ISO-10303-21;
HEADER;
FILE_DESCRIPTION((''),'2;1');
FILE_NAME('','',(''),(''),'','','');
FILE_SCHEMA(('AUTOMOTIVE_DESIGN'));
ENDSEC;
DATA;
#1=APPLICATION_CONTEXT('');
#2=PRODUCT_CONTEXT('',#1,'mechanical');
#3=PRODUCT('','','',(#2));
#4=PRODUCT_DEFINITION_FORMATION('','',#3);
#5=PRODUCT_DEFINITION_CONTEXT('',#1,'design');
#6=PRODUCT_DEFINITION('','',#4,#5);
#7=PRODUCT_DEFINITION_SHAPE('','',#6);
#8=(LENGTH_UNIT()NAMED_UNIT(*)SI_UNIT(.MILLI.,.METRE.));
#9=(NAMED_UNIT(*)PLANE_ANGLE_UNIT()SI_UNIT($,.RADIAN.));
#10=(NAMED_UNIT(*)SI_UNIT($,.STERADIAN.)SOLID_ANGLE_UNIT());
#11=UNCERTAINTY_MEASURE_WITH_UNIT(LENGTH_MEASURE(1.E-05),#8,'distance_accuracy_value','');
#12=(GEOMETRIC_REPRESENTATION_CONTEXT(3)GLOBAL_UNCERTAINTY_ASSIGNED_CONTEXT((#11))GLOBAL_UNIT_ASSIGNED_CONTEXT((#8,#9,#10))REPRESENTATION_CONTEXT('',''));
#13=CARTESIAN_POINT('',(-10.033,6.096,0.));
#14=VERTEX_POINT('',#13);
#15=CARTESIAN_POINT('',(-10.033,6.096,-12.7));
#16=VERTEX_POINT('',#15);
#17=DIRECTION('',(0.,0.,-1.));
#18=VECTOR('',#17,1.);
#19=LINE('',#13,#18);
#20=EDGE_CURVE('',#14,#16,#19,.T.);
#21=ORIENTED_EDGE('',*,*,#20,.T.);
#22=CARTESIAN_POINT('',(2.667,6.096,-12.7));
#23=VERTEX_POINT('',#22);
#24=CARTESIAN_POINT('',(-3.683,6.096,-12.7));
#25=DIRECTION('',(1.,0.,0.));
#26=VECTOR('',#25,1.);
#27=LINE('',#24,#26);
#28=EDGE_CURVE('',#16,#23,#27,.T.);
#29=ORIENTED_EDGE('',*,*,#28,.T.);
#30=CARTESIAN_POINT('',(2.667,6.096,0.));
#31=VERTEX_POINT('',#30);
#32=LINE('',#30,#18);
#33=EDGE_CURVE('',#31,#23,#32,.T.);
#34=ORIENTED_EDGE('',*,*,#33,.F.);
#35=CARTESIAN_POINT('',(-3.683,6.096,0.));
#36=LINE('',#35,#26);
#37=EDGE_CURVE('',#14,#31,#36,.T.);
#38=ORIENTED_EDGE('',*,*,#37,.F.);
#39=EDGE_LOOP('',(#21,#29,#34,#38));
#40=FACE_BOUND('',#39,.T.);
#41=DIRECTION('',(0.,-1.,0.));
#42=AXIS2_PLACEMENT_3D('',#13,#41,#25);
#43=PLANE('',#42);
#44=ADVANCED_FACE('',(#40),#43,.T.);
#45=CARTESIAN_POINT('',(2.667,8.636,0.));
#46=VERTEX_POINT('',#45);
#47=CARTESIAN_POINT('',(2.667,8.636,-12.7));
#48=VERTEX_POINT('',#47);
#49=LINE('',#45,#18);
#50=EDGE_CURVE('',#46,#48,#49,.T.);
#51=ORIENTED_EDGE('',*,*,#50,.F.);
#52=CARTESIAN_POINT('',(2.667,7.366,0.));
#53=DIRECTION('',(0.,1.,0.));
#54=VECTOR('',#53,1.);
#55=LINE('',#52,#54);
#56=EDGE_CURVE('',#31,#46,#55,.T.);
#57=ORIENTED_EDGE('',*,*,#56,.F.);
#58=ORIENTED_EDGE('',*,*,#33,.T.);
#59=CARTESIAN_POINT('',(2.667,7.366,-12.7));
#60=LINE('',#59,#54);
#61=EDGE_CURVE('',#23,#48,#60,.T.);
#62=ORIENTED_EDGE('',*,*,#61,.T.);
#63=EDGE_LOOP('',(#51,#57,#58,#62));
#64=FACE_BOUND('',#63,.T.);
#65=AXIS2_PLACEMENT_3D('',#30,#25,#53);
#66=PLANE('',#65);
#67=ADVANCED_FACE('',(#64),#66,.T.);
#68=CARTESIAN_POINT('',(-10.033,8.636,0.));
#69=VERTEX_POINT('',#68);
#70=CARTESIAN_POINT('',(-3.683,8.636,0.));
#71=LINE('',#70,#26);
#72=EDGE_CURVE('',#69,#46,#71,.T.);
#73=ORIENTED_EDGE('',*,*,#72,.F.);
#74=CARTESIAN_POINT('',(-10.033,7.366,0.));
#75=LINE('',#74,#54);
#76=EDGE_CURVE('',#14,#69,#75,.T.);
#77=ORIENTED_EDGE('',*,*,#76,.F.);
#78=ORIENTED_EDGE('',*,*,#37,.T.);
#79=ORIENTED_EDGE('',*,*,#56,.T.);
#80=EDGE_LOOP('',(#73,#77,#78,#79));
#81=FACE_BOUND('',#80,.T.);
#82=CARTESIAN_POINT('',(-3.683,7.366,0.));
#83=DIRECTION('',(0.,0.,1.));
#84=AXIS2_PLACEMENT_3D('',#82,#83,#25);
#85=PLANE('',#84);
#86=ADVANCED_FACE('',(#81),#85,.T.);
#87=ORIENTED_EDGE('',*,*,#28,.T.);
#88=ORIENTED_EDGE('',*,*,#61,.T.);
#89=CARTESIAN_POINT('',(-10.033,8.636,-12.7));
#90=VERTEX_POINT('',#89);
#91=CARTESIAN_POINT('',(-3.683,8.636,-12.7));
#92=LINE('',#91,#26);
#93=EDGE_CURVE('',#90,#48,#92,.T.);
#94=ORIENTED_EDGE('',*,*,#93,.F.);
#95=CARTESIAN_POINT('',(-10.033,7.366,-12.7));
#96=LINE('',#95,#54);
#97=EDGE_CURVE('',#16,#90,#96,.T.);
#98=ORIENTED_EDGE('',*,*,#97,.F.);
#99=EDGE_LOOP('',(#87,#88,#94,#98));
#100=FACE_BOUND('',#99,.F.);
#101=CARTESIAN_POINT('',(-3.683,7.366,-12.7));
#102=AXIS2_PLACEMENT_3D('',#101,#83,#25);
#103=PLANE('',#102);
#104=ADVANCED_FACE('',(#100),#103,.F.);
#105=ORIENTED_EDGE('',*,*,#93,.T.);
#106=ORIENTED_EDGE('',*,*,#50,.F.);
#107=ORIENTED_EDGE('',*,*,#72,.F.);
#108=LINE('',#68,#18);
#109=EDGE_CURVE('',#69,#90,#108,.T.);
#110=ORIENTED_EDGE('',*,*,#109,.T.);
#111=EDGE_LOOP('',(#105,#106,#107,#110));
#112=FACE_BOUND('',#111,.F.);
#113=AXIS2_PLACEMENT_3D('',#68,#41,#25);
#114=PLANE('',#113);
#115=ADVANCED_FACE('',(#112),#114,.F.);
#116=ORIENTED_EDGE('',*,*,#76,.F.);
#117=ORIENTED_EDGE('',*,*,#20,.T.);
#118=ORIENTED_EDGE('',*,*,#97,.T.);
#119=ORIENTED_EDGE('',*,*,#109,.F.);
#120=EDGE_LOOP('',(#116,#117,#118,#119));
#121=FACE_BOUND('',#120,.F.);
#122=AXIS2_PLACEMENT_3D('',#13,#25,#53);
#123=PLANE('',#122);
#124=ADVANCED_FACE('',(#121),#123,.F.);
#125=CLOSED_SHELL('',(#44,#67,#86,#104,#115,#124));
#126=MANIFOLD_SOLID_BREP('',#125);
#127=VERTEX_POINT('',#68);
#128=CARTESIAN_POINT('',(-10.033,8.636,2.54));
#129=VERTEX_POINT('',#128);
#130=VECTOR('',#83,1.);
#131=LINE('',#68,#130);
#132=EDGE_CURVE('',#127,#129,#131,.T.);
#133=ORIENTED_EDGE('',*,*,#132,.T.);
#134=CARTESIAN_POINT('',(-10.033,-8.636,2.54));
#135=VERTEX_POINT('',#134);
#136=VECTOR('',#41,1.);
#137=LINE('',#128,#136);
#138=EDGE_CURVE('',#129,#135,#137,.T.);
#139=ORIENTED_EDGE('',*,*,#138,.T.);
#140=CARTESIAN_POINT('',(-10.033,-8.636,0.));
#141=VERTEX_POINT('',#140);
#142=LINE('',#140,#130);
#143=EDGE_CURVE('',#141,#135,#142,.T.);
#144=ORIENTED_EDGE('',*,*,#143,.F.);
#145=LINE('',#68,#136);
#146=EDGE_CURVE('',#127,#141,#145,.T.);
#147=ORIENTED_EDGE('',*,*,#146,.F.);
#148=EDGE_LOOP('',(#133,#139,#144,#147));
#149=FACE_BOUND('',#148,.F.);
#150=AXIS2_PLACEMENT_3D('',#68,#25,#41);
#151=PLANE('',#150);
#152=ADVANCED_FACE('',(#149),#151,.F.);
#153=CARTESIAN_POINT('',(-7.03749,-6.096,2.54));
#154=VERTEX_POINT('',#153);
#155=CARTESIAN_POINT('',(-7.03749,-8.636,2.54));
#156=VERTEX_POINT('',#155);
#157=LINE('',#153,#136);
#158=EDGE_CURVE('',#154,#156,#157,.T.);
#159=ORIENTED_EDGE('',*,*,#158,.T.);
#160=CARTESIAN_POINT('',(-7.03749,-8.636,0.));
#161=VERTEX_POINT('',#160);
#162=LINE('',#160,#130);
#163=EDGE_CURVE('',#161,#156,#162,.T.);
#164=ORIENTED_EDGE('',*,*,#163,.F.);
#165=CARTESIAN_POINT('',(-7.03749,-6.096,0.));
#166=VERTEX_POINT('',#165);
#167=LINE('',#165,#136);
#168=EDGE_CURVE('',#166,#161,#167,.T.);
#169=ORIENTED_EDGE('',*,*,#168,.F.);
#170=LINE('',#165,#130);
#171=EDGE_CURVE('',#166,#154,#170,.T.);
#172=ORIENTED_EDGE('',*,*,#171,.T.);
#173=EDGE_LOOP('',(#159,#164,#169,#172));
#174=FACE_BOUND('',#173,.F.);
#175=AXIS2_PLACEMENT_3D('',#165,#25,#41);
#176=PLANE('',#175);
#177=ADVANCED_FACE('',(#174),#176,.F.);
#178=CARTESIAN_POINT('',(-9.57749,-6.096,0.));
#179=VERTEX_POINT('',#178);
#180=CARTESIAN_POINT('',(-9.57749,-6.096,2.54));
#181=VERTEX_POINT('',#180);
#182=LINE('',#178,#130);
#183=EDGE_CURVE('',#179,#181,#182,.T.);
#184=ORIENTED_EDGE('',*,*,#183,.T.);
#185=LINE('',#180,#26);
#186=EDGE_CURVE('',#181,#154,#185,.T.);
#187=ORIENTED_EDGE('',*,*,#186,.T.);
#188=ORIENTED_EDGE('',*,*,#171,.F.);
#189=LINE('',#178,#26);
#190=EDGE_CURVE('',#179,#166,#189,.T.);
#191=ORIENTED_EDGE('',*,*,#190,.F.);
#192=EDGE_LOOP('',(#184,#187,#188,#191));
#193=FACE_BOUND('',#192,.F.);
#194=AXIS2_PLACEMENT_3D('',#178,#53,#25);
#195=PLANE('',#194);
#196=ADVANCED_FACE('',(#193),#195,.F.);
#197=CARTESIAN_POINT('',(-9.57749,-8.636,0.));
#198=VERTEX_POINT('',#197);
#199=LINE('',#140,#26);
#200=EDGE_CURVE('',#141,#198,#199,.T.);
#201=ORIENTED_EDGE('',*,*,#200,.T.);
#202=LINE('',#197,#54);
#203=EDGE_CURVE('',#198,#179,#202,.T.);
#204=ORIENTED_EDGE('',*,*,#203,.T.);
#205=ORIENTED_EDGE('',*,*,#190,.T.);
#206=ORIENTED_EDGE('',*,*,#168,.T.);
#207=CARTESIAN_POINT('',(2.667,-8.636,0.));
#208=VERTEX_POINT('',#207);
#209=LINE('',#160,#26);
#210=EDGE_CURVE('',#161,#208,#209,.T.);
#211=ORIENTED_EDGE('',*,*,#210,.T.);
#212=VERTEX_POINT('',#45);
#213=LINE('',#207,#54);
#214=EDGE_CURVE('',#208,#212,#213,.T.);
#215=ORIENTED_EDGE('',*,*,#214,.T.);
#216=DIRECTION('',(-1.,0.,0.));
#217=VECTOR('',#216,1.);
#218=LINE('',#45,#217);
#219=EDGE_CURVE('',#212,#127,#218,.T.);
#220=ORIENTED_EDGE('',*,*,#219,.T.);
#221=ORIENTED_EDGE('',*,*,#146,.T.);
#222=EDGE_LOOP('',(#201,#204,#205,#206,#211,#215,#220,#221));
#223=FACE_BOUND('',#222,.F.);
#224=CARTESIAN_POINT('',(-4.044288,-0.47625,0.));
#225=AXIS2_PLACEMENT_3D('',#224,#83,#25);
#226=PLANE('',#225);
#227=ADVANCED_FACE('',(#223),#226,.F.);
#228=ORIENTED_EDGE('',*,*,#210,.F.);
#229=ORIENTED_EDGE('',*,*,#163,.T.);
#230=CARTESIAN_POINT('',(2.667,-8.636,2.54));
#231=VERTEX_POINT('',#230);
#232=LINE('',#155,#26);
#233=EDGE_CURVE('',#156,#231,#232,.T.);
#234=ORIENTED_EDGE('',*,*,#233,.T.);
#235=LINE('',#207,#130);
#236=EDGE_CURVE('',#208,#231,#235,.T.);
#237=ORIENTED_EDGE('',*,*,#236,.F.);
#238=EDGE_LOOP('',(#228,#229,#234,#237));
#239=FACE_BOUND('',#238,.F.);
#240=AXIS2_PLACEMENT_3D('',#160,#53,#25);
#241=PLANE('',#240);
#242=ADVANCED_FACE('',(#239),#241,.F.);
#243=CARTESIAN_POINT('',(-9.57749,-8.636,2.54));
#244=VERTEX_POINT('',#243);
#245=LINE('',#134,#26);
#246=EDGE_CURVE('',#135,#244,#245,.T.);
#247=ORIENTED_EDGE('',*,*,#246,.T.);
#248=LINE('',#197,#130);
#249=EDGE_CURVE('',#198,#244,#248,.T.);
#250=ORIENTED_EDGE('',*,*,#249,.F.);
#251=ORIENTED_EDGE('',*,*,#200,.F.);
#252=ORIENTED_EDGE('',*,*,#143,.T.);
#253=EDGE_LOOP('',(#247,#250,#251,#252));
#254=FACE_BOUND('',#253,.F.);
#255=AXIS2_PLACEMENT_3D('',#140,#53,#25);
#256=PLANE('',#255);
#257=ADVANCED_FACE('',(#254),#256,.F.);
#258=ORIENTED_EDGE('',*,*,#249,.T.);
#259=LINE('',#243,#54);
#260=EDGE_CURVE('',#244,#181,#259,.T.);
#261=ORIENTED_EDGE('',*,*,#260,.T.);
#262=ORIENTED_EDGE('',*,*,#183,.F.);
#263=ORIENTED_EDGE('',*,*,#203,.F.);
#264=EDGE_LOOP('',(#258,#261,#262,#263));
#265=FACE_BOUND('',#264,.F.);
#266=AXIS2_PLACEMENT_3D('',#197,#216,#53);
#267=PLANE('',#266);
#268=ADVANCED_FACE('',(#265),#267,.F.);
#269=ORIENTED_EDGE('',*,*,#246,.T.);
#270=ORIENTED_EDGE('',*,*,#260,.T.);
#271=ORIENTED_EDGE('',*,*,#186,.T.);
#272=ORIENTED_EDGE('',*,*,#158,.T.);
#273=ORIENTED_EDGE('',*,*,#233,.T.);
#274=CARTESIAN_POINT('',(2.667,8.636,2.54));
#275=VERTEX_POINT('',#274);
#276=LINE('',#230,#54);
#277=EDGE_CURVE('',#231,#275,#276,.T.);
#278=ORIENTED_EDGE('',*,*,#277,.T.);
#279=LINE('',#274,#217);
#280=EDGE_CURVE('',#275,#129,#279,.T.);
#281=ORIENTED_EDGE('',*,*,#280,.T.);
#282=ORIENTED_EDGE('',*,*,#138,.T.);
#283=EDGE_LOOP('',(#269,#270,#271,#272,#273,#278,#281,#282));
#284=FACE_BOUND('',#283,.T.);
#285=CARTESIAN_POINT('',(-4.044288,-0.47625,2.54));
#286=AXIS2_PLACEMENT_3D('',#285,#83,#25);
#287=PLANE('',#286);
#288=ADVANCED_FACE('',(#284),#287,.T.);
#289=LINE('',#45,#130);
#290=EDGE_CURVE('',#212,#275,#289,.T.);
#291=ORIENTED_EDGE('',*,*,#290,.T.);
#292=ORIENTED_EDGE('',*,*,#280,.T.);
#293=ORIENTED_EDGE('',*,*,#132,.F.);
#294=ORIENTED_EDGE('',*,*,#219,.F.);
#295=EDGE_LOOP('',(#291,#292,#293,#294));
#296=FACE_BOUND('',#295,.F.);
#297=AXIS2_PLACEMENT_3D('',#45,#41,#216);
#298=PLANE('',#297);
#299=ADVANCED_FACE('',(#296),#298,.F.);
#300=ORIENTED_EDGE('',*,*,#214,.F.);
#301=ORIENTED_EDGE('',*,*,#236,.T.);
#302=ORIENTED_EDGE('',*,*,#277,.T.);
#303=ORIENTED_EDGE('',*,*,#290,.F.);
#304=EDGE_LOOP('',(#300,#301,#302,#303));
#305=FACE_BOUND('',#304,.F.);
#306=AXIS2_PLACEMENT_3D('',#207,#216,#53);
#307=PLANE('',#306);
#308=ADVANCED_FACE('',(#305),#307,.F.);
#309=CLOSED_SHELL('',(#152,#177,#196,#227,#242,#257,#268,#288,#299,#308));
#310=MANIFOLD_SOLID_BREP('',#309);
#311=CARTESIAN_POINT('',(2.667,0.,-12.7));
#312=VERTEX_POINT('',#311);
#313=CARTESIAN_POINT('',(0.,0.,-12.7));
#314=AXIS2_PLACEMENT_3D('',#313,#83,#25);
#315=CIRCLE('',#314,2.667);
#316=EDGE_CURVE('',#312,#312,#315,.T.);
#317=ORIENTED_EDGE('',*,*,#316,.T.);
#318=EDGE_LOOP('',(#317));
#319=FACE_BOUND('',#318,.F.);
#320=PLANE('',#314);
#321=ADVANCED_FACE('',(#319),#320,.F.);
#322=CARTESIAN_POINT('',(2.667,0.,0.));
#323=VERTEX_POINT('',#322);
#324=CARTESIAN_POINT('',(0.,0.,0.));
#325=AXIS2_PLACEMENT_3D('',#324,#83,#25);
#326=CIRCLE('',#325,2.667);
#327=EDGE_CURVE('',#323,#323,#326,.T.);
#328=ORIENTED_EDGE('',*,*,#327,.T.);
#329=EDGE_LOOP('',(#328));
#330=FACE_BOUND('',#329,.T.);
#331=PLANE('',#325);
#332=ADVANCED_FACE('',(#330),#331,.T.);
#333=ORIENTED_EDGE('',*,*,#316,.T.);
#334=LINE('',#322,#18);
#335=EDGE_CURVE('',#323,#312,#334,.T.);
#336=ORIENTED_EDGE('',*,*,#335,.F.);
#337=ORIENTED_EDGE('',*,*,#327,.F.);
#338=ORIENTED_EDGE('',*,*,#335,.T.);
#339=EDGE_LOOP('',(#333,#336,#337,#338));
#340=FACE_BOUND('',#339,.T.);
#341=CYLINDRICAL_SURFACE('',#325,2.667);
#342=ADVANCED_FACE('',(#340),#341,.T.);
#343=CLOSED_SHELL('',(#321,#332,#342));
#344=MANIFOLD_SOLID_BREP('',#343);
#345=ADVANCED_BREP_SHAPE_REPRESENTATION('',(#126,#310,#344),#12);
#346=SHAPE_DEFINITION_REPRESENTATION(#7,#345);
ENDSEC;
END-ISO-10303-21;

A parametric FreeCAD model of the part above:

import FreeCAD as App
import Part
import Sketcher
from FreeCAD import Vector
Q = App.Units.Quantity

doc = App.newDocument("Part")
body = doc.addObject("PartDesign::Body", "Body")
body.AllowCompound = True

# Sketch on XY plane
sketch1 = body.newObject("Sketcher::SketchObject", "Sketch")
sketch1.AttachmentSupport = (doc.getObject("XY_Plane"), [""])
sketch1.MapMode = "FlatFace"
sketch1.addGeometry(Part.Circle(Vector(0, 0, 0), Vector(0, 0, 1), 2.7), False)
sketch1.addGeometry(Part.LineSegment(Vector(-10, 8.6, 0), Vector(-10, 6.1, 0)), False)
sketch1.addGeometry(Part.LineSegment(Vector(-10, 6.1, 0), Vector(2.7, 6.1, 0)), False)
sketch1.addGeometry(Part.LineSegment(Vector(2.7, 6.1, 0), Vector(2.7, 8.6, 0)), False)
sketch1.addGeometry(Part.LineSegment(Vector(2.7, 8.6, 0), Vector(-10, 8.6, 0)), False)
sketch1.addConstraint(Sketcher.Constraint("Coincident", 1, 2, 2, 1))
sketch1.addConstraint(Sketcher.Constraint("Coincident", 2, 2, 3, 1))
sketch1.addConstraint(Sketcher.Constraint("Coincident", 3, 2, 4, 1))
sketch1.addConstraint(Sketcher.Constraint("Coincident", 4, 2, 1, 1))
sketch1.addConstraint(Sketcher.Constraint("Vertical", 1))
sketch1.addConstraint(Sketcher.Constraint("Horizontal", 2))
sketch1.addConstraint(Sketcher.Constraint("Vertical", 3))
sketch1.addConstraint(Sketcher.Constraint("Horizontal", 4))
sketch1.addConstraint(Sketcher.Constraint("Coincident", 0, 3, -1, 1))
sketch1.addConstraint(Sketcher.Constraint("Diameter", 0, Q("0.21 in")))
sketch1.addConstraint(Sketcher.Constraint("DistanceX", 2, 1, 2, 2, Q("0.5 in")))
sketch1.addConstraint(Sketcher.Constraint("DistanceY", 1, 2, 1, 1, Q("0.1 in")))
sketch1.addConstraint(Sketcher.Constraint("DistanceY", -1, 1, 1, 2, Q("0.24 in")))
sketch1.addConstraint(Sketcher.Constraint("DistanceX", 1, 2, -1, 1, Q("0.395 in")))
pad1 = body.newObject("PartDesign::Pad", "Pad")
pad1.Profile = sketch1
pad1.Length = Q("0.5 in")
pad1.Reversed = True
body2 = doc.addObject("PartDesign::Body", "Body001")

# Sketch on XY plane
sketch2 = body2.newObject("Sketcher::SketchObject", "Sketch001")
sketch2.AttachmentSupport = (doc.getObject("XY_Plane001"), [""])
sketch2.MapMode = "FlatFace"
sketch2.addGeometry(Part.LineSegment(Vector(2.67, -8.64, 0), Vector(2.67, 8.64, 0)), False)
sketch2.addGeometry(Part.LineSegment(Vector(2.67, 8.64, 0), Vector(-10.03, 8.64, 0)), False)
sketch2.addGeometry(Part.LineSegment(Vector(-10.03, 8.64, 0), Vector(-10.03, -8.64, 0)), False)
sketch2.addGeometry(Part.LineSegment(Vector(-10.03, -8.64, 0), Vector(-9.58, -8.64, 0)), False)
sketch2.addGeometry(Part.LineSegment(Vector(-9.58, -8.64, 0), Vector(-9.58, -6.1, 0)), False)
sketch2.addGeometry(Part.LineSegment(Vector(-9.58, -6.1, 0), Vector(-7.04, -6.1, 0)), False)
sketch2.addGeometry(Part.LineSegment(Vector(-7.04, -6.1, 0), Vector(-7.04, -8.64, 0)), False)
sketch2.addGeometry(Part.LineSegment(Vector(-7.04, -8.64, 0), Vector(2.67, -8.64, 0)), False)
sketch2.addConstraint(Sketcher.Constraint("Coincident", 0, 2, 1, 1))
sketch2.addConstraint(Sketcher.Constraint("Coincident", 1, 2, 2, 1))
sketch2.addConstraint(Sketcher.Constraint("Coincident", 2, 2, 3, 1))
sketch2.addConstraint(Sketcher.Constraint("Coincident", 3, 2, 4, 1))
sketch2.addConstraint(Sketcher.Constraint("Coincident", 4, 2, 5, 1))
sketch2.addConstraint(Sketcher.Constraint("Coincident", 5, 2, 6, 1))
sketch2.addConstraint(Sketcher.Constraint("Coincident", 6, 2, 7, 1))
sketch2.addConstraint(Sketcher.Constraint("Coincident", 7, 2, 0, 1))
sketch2.addConstraint(Sketcher.Constraint("Vertical", 0))
sketch2.addConstraint(Sketcher.Constraint("Horizontal", 1))
sketch2.addConstraint(Sketcher.Constraint("Vertical", 2))
sketch2.addConstraint(Sketcher.Constraint("Horizontal", 3))
sketch2.addConstraint(Sketcher.Constraint("Vertical", 4))
sketch2.addConstraint(Sketcher.Constraint("Horizontal", 5))
sketch2.addConstraint(Sketcher.Constraint("Vertical", 6))
sketch2.addConstraint(Sketcher.Constraint("Horizontal", 7))
sketch2.addConstraint(Sketcher.Constraint("Horizontal", 3, 2, 6, 2))
sketch2.addConstraint(Sketcher.Constraint("Equal", 5, 4))
sketch2.addConstraint(Sketcher.Constraint("DistanceX", 1, 2, 1, 1, Q("0.5 in")))
sketch2.addConstraint(Sketcher.Constraint("DistanceX", 5, 1, 5, 2, Q("0.1 in")))
sketch2.addConstraint(Sketcher.Constraint("DistanceY", 0, 1, 0, 2, Q("0.68 in")))
sketch2.addConstraint(Sketcher.Constraint("DistanceY", -1, 1, 0, 2, Q("0.34 in")))
sketch2.addConstraint(Sketcher.Constraint("DistanceX", -1, 1, 0, 2, Q("0.105 in")))
sketch2.addConstraint(Sketcher.Constraint("DistanceX", 3, 1, 3, 2, 0.45551))
pad2 = body2.newObject("PartDesign::Pad", "Pad001")
pad2.Profile = sketch2
pad2.Length = Q("0.1 in")

doc.recompute()
